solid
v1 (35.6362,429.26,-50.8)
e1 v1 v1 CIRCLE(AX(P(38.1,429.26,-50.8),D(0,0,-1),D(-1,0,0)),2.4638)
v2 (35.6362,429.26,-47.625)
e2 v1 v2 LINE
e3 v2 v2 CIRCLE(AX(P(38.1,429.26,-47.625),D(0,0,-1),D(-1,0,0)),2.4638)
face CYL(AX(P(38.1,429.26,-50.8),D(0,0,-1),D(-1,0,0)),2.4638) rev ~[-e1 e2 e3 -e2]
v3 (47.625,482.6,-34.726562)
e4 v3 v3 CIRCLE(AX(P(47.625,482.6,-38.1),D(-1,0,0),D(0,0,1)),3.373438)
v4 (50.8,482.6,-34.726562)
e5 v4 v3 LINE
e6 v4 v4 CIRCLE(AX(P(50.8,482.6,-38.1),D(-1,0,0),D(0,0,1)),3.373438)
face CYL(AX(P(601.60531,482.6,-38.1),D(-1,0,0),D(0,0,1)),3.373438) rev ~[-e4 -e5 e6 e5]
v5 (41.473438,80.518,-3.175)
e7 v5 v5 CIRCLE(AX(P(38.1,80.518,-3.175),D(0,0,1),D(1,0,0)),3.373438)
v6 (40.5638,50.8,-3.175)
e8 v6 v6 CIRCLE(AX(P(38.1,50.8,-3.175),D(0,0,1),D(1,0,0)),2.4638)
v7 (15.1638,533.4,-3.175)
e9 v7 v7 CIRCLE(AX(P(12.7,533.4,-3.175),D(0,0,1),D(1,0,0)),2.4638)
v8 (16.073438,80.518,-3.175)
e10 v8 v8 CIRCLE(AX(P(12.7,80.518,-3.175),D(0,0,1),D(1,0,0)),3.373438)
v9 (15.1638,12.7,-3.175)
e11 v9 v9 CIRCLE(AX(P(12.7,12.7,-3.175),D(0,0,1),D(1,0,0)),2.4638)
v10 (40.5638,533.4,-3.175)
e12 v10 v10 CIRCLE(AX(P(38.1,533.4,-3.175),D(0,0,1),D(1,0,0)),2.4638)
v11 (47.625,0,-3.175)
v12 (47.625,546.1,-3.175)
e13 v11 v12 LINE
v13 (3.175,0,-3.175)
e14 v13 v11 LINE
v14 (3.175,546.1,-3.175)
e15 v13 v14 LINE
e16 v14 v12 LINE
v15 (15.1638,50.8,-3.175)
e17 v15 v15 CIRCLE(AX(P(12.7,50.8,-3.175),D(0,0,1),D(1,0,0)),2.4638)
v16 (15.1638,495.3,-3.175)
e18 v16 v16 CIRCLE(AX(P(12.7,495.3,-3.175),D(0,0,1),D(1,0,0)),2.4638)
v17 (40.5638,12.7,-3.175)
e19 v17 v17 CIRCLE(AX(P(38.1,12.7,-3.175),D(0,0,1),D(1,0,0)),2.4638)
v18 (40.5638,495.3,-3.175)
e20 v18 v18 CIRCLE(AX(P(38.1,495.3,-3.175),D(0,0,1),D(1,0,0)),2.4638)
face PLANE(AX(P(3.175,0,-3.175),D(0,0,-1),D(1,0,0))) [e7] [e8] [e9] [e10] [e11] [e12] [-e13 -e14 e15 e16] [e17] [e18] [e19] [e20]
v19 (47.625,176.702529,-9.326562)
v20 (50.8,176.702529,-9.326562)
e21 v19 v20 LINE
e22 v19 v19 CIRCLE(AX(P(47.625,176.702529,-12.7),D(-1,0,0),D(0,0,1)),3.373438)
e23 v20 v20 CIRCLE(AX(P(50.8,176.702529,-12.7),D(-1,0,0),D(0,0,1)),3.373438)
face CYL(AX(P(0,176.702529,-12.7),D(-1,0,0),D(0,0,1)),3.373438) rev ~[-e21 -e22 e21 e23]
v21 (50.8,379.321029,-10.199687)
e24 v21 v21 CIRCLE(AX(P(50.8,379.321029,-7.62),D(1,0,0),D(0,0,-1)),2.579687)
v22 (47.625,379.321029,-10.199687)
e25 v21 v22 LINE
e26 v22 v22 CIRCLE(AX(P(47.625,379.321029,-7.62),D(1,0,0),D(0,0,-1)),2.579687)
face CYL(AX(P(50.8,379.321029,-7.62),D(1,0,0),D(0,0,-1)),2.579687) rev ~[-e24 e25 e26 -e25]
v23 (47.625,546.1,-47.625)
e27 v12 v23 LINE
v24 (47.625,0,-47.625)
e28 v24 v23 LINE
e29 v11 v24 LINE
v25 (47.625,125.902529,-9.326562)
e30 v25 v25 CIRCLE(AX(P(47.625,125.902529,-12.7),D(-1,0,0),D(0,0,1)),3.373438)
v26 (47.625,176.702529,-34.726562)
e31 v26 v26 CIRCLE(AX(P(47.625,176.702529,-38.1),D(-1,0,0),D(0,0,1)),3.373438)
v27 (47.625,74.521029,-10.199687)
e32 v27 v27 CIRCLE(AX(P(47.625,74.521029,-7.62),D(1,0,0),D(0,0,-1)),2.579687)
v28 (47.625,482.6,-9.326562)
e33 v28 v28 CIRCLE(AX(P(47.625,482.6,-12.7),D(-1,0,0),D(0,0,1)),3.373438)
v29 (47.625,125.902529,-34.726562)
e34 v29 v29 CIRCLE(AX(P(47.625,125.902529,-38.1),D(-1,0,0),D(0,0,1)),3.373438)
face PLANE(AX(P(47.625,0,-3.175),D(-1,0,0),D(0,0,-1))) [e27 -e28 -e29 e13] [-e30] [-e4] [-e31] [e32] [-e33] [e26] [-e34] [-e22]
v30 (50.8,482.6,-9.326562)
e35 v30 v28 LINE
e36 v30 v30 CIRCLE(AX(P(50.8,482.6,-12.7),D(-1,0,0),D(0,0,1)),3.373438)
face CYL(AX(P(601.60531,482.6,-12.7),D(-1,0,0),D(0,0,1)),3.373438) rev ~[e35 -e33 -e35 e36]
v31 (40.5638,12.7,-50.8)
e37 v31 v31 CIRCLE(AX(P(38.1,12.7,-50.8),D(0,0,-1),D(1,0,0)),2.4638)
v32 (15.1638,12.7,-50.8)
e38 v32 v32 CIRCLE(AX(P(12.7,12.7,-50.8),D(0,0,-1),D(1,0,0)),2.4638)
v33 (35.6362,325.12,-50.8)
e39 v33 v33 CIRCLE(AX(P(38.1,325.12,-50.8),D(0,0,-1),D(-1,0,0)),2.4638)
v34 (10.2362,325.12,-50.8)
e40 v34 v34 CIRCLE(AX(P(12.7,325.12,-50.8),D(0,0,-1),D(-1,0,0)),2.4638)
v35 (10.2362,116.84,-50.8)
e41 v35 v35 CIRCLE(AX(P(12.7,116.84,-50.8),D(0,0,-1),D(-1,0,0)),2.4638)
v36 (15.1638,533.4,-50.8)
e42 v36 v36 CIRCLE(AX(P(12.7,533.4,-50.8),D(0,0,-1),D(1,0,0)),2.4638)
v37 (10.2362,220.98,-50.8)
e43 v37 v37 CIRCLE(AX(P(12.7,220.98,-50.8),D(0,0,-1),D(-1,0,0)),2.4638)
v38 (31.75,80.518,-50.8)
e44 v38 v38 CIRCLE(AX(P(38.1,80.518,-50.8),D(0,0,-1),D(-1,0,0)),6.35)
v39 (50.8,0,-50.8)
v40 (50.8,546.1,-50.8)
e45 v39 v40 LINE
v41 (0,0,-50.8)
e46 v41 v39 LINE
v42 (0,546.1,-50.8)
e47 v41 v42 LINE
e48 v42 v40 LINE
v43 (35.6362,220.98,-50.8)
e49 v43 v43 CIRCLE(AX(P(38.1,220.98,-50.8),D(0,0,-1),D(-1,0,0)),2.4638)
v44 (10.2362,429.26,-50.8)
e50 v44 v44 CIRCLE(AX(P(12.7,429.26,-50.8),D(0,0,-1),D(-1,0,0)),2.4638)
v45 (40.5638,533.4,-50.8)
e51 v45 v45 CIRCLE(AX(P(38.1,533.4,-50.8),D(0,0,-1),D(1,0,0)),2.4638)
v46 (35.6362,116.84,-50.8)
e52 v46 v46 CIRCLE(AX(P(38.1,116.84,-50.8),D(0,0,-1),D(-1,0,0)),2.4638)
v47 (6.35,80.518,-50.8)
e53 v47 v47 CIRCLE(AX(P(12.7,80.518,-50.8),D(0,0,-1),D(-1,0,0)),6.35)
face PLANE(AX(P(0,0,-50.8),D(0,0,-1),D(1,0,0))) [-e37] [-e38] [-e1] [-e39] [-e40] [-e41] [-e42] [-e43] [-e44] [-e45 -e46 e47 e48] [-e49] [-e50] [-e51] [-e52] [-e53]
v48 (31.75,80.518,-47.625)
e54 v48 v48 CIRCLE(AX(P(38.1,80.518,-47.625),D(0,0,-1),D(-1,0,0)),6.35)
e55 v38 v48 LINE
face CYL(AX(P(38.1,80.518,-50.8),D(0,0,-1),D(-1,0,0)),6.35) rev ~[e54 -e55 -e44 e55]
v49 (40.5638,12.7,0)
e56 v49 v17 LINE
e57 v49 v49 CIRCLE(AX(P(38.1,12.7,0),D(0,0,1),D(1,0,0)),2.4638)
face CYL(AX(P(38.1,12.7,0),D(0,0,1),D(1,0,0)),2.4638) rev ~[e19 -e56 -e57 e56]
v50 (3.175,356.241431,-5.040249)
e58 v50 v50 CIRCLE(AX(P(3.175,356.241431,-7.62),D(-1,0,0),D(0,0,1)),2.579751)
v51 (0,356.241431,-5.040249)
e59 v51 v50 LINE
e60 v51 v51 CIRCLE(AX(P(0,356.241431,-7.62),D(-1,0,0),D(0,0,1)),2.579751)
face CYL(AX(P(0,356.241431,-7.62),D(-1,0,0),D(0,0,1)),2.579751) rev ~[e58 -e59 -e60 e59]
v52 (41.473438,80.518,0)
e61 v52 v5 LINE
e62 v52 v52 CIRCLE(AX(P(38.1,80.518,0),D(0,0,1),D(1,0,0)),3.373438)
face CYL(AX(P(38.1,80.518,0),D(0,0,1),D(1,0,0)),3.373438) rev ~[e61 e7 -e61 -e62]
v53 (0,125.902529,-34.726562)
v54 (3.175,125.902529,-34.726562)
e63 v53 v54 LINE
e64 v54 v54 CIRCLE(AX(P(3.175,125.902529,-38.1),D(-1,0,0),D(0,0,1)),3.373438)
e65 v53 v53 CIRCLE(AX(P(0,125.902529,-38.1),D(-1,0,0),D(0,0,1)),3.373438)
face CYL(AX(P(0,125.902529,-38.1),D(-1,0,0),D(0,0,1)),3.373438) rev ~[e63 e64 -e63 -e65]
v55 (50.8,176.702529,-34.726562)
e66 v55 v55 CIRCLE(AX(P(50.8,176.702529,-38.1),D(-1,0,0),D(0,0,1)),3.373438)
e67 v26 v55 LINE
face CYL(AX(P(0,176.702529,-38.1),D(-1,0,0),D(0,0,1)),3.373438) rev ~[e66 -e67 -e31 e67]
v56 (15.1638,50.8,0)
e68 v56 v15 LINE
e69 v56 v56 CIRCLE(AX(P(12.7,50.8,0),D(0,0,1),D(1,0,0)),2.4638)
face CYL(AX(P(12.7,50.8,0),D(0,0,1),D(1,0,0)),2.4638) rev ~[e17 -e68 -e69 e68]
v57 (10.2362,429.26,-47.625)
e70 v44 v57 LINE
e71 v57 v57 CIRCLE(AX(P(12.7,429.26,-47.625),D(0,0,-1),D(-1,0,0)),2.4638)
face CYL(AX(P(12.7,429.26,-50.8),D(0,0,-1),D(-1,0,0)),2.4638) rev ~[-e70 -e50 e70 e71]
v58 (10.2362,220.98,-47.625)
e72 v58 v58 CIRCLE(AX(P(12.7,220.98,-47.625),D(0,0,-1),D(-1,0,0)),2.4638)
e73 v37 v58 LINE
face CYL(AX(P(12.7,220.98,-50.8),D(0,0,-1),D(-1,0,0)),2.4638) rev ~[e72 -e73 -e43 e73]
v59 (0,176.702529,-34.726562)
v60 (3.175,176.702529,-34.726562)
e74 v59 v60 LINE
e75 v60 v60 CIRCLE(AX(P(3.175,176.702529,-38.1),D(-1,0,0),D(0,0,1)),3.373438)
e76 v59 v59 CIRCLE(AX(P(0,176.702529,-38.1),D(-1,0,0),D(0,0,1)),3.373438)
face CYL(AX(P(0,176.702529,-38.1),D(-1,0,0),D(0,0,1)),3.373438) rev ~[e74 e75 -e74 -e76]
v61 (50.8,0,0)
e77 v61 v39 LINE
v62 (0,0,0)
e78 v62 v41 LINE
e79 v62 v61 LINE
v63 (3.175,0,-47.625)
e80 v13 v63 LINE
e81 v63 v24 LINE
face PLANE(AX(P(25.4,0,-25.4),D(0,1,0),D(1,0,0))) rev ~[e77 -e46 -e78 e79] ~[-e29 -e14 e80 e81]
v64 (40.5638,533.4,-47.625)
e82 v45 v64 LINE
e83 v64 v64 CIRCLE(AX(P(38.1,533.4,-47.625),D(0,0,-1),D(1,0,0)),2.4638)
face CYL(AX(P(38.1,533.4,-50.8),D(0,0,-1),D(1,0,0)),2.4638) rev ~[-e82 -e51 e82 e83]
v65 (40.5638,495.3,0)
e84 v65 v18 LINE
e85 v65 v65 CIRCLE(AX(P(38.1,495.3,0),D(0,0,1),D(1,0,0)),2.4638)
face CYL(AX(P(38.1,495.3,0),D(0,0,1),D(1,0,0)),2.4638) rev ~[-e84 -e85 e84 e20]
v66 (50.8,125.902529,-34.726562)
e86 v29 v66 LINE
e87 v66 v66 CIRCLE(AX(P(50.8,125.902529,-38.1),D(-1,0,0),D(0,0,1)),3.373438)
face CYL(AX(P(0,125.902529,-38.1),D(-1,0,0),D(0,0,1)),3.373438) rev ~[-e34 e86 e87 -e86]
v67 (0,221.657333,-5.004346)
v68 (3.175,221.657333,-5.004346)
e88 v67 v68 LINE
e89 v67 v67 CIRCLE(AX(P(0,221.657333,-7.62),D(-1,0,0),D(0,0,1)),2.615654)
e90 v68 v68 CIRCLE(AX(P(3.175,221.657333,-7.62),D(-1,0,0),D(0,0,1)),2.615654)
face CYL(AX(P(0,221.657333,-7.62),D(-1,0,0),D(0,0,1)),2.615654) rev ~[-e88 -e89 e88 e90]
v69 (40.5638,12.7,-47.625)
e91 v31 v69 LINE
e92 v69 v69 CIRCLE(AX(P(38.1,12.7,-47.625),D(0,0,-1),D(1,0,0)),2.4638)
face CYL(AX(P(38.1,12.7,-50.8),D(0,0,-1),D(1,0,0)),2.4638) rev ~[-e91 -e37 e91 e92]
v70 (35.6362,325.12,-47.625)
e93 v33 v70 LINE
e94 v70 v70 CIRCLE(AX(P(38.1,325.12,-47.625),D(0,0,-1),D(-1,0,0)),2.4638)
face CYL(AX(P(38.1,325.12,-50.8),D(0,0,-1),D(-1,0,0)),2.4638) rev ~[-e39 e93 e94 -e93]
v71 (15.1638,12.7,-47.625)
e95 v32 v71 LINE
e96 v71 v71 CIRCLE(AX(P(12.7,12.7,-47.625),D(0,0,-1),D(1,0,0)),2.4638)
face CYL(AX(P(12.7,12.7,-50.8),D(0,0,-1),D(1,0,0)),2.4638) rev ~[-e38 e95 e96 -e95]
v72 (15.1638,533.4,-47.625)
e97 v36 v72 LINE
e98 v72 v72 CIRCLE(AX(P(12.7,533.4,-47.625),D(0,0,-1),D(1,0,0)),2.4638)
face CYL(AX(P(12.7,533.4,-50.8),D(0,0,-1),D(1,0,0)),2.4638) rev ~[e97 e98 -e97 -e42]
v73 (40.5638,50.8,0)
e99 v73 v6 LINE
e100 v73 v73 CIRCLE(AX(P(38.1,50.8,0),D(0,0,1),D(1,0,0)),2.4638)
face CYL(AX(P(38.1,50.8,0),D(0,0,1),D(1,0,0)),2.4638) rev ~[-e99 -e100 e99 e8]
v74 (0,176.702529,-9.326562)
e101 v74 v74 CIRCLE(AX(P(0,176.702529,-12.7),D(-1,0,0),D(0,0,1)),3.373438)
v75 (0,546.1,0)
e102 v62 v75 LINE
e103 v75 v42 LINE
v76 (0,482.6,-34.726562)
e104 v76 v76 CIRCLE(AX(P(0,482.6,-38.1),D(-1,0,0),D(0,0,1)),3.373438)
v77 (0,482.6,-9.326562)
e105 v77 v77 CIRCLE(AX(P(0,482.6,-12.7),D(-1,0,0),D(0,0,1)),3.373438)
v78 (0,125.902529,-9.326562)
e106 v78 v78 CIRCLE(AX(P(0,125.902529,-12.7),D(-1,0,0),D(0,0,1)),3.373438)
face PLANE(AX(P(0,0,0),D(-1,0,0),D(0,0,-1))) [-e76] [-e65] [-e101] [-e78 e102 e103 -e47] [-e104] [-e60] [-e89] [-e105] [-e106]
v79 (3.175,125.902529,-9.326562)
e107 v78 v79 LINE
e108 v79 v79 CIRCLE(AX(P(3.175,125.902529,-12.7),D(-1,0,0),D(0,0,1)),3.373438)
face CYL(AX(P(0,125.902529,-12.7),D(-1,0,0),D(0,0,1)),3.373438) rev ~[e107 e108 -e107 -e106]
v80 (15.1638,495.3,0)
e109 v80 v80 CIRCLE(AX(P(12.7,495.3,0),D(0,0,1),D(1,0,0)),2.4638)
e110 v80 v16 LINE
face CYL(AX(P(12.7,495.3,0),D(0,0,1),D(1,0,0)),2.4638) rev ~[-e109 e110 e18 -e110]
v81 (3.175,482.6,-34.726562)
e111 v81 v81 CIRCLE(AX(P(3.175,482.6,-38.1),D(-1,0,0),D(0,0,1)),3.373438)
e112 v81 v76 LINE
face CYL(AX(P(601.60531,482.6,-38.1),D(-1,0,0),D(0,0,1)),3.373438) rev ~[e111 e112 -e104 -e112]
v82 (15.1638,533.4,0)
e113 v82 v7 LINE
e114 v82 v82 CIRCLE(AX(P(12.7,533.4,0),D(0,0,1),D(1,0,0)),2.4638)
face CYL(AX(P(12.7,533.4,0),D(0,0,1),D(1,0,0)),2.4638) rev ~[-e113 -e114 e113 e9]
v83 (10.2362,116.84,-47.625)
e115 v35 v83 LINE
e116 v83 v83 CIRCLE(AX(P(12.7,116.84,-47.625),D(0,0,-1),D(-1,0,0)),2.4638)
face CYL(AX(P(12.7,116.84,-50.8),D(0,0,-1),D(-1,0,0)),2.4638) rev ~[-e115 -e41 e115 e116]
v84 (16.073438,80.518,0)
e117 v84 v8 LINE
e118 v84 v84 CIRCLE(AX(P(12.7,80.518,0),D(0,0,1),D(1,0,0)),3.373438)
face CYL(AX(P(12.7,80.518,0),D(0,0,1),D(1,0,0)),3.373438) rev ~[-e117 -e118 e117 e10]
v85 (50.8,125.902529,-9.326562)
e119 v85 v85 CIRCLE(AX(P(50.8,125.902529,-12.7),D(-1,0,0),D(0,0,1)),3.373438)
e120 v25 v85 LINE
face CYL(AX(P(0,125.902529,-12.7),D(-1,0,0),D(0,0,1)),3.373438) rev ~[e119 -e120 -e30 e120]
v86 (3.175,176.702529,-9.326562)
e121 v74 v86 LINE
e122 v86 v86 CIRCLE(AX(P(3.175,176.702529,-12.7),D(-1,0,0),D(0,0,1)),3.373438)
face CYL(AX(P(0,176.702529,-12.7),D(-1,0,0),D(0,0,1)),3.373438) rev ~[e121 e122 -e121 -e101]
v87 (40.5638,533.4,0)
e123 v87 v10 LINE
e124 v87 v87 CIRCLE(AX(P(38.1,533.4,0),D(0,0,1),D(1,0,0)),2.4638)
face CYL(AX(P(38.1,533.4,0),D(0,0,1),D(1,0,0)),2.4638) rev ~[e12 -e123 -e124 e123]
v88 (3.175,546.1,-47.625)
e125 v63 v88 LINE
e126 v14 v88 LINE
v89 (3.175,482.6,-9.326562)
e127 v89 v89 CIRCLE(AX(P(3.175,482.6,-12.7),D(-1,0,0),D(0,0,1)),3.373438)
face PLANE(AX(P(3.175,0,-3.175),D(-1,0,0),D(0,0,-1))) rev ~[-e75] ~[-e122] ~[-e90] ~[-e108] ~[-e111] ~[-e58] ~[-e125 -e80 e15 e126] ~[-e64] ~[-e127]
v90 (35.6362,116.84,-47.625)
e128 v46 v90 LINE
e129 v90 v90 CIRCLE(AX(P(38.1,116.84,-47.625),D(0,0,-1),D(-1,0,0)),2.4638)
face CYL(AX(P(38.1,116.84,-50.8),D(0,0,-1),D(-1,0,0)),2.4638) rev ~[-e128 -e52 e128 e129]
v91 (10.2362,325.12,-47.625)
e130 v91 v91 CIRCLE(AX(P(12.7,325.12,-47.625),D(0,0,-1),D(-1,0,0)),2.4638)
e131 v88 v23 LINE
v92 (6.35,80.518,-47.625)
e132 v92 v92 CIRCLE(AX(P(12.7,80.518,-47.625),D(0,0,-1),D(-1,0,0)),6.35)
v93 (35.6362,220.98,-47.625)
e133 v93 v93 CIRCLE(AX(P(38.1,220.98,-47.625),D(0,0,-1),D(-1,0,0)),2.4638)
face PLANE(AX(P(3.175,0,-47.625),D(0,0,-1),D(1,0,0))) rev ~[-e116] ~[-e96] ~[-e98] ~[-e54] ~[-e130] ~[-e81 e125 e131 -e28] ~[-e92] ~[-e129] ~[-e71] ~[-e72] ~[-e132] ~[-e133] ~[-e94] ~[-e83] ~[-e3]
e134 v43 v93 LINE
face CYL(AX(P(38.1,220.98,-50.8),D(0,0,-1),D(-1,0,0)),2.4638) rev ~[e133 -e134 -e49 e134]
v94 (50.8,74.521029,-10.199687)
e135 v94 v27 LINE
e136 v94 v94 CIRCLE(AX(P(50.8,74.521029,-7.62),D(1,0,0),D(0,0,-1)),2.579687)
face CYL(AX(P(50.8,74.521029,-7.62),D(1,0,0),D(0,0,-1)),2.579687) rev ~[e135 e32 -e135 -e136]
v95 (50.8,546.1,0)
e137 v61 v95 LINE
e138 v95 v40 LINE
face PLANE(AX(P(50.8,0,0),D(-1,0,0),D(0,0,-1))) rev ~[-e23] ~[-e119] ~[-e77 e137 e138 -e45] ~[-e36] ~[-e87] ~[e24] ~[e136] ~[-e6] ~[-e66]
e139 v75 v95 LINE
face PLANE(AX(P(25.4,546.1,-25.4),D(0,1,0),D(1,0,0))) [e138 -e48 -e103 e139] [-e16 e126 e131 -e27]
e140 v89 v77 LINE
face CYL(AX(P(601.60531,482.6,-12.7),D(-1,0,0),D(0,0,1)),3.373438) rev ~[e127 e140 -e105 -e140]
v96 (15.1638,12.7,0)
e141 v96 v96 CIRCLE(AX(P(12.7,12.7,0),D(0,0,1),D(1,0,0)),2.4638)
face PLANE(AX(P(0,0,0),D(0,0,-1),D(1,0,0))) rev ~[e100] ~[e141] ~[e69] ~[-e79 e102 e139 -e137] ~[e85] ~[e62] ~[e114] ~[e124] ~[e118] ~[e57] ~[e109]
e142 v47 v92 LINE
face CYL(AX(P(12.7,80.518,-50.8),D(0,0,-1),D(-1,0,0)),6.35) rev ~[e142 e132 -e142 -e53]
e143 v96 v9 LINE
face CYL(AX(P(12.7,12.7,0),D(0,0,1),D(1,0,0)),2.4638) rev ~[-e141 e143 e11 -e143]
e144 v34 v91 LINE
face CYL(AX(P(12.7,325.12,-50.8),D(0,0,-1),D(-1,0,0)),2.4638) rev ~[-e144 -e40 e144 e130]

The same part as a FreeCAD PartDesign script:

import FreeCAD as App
import Part
import Sketcher
Q = App.Units.Quantity


def add_polygon(sketch, points):
    """Adds a closed chain of lines whose ends are joined by coincident constraints."""
    first, n = sketch.GeometryCount, len(points)
    for a, b in zip(points, points[1:] + points[:1]):
        sketch.addGeometry(Part.LineSegment(App.Vector(*a, 0), App.Vector(*b, 0)), False)
    for i in range(n):
        sketch.addConstraint(Sketcher.Constraint("Coincident", first + i, 2, first + (i + 1) % n, 1))

doc = App.newDocument("Part")
body = doc.addObject("PartDesign::Body", "Body")

# Sketch on XZ plane
sketch1 = doc.addObject("Sketcher::SketchObject", "Sketch")
body.addObject(sketch1)
sketch1.AttachmentSupport = (doc.XZ_Plane, [""])
sketch1.MapMode = "FlatFace"
add_polygon(sketch1, [(0, -51), (0, 0), (51, 0), (51, -51)])  # lines 0-3
add_polygon(sketch1, [(48, -3), (3, -3), (3, -48), (48, -48)])  # lines 4-7
sketch1.addConstraint([
    Sketcher.Constraint("Vertical", 0),
    Sketcher.Constraint("Horizontal", 1),
    Sketcher.Constraint("Vertical", 2),
    Sketcher.Constraint("Horizontal", 3),
    Sketcher.Constraint("Horizontal", 4),
    Sketcher.Constraint("Vertical", 5),
    Sketcher.Constraint("Horizontal", 6),
    Sketcher.Constraint("Vertical", 7),
    Sketcher.Constraint("Coincident", 0, 2, -1, 1),
    Sketcher.Constraint("Equal", 3, 0),
    Sketcher.Constraint("Equal", 6, 5),
    Sketcher.Constraint("DistanceX", 1, 1, 1, 2, Q("2 in")),
    Sketcher.Constraint("DistanceX", 4, 2, 4, 1, Q("1.75 in")),
    Sketcher.Constraint("DistanceX", -1, 1, 4, 2, Q("0.125 in")),
    Sketcher.Constraint("DistanceY", 4, 2, -1, 1, Q("0.125 in")),
])
pad1 = doc.addObject("PartDesign::Pad", "Pad")
body.addObject(pad1)
pad1.Profile = sketch1
pad1.Length = Q("21.5 in")
pad1.Reversed = True

# Sketch on XY plane
sketch2 = doc.addObject("Sketcher::SketchObject", "Sketch001")
body.addObject(sketch2)
sketch2.AttachmentSupport = (doc.XY_Plane, [""])
sketch2.MapMode = "FlatFace"
sketch2.addGeometry(Part.Circle(App.Vector(38.1, 12.7, 0), App.Vector(0, 0, 1), 2.5), False)
sketch2.addConstraint([
    Sketcher.Constraint("Diameter", 0, Q("0.194 in")),
    Sketcher.Constraint("DistanceX", -1, 1, 0, 3, Q("1.5 in")),
    Sketcher.Constraint("DistanceY", -1, 1, 0, 3, Q("0.5 in")),
])
pocket1 = doc.addObject("PartDesign::Pocket", "Pocket")
body.addObject(pocket1)
pocket1.Profile = sketch2
pocket1.Type = "UpToFirst"

# Sketch on XY plane
sketch3 = doc.addObject("Sketcher::SketchObject", "Sketch002")
body.addObject(sketch3)
sketch3.AttachmentSupport = (doc.XY_Plane, [""])
sketch3.MapMode = "FlatFace"
sketch3.addGeometry(Part.Circle(App.Vector(12.7, 12.7, 0), App.Vector(0, 0, 1), 2.5), False)
sketch3.addConstraint([
    Sketcher.Constraint("Diameter", 0, Q("0.194 in")),
    Sketcher.Constraint("DistanceX", -1, 1, 0, 3, Q("0.5 in")),
    Sketcher.Constraint("DistanceY", -1, 1, 0, 3, Q("0.5 in")),
])
pocket2 = doc.addObject("PartDesign::Pocket", "Pocket001")
body.addObject(pocket2)
pocket2.Profile = sketch3
pocket2.Type = "UpToFirst"

# Sketch on XY plane
sketch4 = doc.addObject("Sketcher::SketchObject", "Sketch003")
body.addObject(sketch4)
sketch4.AttachmentSupport = (doc.XY_Plane, [""])
sketch4.MapMode = "FlatFace"
sketch4.addGeometry(Part.Circle(App.Vector(12.7, 50.8, 0), App.Vector(0, 0, 1), 2.5), False)
sketch4.addConstraint([
    Sketcher.Constraint("Diameter", 0, Q("0.194 in")),
    Sketcher.Constraint("DistanceY", -1, 1, 0, 3, Q("2 in")),
    Sketcher.Constraint("DistanceX", -1, 1, 0, 3, Q("0.5 in")),
])
pocket3 = doc.addObject("PartDesign::Pocket", "Pocket002")
body.addObject(pocket3)
pocket3.Profile = sketch4
pocket3.Type = "UpToFirst"

# Sketch on XY plane
sketch5 = doc.addObject("Sketcher::SketchObject", "Sketch004")
body.addObject(sketch5)
sketch5.AttachmentSupport = (doc.XY_Plane, [""])
sketch5.MapMode = "FlatFace"
sketch5.addGeometry(Part.Circle(App.Vector(38.1, 50.8, 0), App.Vector(0, 0, 1), 2.5), False)
sketch5.addConstraint([
    Sketcher.Constraint("Diameter", 0, Q("0.194 in")),
    Sketcher.Constraint("DistanceY", -1, 1, 0, 3, Q("2 in")),
    Sketcher.Constraint("DistanceX", -1, 1, 0, 3, Q("1.5 in")),
])
pocket4 = doc.addObject("PartDesign::Pocket", "Pocket003")
body.addObject(pocket4)
pocket4.Profile = sketch5
pocket4.Type = "UpToFirst"

# Sketch on XY plane
sketch6 = doc.addObject("Sketcher::SketchObject", "Sketch005")
body.addObject(sketch6)
sketch6.AttachmentSupport = (doc.XY_Plane, [""])
sketch6.MapMode = "FlatFace"
sketch6.addGeometry(Part.Circle(App.Vector(38.1, 495.3, 0), App.Vector(0, 0, 1), 2.5), False)
sketch6.addConstraint([
    Sketcher.Constraint("Diameter", 0, Q("0.194 in")),
    Sketcher.Constraint("DistanceX", -1, 1, 0, 3, Q("1.5 in")),
    Sketcher.Constraint("DistanceY", -1, 1, 0, 3, Q("19.5 in")),
])
pocket5 = doc.addObject("PartDesign::Pocket", "Pocket004")
body.addObject(pocket5)
pocket5.Profile = sketch6
pocket5.Type = "UpToFirst"

# Sketch on XY plane
sketch7 = doc.addObject("Sketcher::SketchObject", "Sketch006")
body.addObject(sketch7)
sketch7.AttachmentSupport = (doc.XY_Plane, [""])
sketch7.MapMode = "FlatFace"
sketch7.addGeometry(Part.Circle(App.Vector(12.7, 495.3, 0), App.Vector(0, 0, 1), 2.5), False)
sketch7.addConstraint([
    Sketcher.Constraint("Diameter", 0, Q("0.194 in")),
    Sketcher.Constraint("DistanceX", -1, 1, 0, 3, Q("0.5 in")),
    Sketcher.Constraint("DistanceY", -1, 1, 0, 3, Q("19.5 in")),
])
pocket6 = doc.addObject("PartDesign::Pocket", "Pocket005")
body.addObject(pocket6)
pocket6.Profile = sketch7
pocket6.Type = "UpToFirst"

# Sketch on XY plane
sketch8 = doc.addObject("Sketcher::SketchObject", "Sketch007")
body.addObject(sketch8)
sketch8.AttachmentSupport = (doc.XY_Plane, [""])
sketch8.MapMode = "FlatFace"
sketch8.addGeometry(Part.Circle(App.Vector(12.7, 533.4, 0), App.Vector(0, 0, 1), 2.5), False)
sketch8.addConstraint([
    Sketcher.Constraint("Diameter", 0, Q("0.194 in")),
    Sketcher.Constraint("DistanceY", -1, 1, 0, 3, Q("21 in")),
    Sketcher.Constraint("DistanceX", -1, 1, 0, 3, Q("0.5 in")),
])
pocket7 = doc.addObject("PartDesign::Pocket", "Pocket006")
body.addObject(pocket7)
pocket7.Profile = sketch8
pocket7.Type = "UpToFirst"

# Sketch on XY plane
sketch9 = doc.addObject("Sketcher::SketchObject", "Sketch008")
body.addObject(sketch9)
sketch9.AttachmentSupport = (doc.XY_Plane, [""])
sketch9.MapMode = "FlatFace"
sketch9.addGeometry(Part.Circle(App.Vector(38.1, 533.4, 0), App.Vector(0, 0, 1), 2.5), False)
sketch9.addConstraint([
    Sketcher.Constraint("Diameter", 0, Q("0.194 in")),
    Sketcher.Constraint("DistanceY", -1, 1, 0, 3, Q("21 in")),
    Sketcher.Constraint("DistanceX", -1, 1, 0, 3, Q("1.5 in")),
])
pocket8 = doc.addObject("PartDesign::Pocket", "Pocket007")
body.addObject(pocket8)
pocket8.Profile = sketch9
pocket8.Type = "UpToFirst"

# Sketch on XY plane
sketch10 = doc.addObject("Sketcher::SketchObject", "Sketch009")
body.addObject(sketch10)
sketch10.AttachmentSupport = (doc.XY_Plane, [""])
sketch10.MapMode = "FlatFace"
sketch10.AttachmentOffset = App.Placement(App.Vector(0, 0, -2 * 25.4), App.Rotation())
sketch10.addGeometry(Part.Circle(App.Vector(38.1, 533.4, 0), App.Vector(0, 0, 1), 2.5), False)
sketch10.addConstraint([
    Sketcher.Constraint("Diameter", 0, Q("0.194 in")),
    Sketcher.Constraint("DistanceY", -1, 1, 0, 3, Q("21 in")),
    Sketcher.Constraint("DistanceX", -1, 1, 0, 3, Q("1.5 in")),
])
pocket9 = doc.addObject("PartDesign::Pocket", "Pocket008")
body.addObject(pocket9)
pocket9.Profile = sketch10
pocket9.Type = "UpToFirst"
pocket9.Reversed = True

# Sketch on XY plane
sketch11 = doc.addObject("Sketcher::SketchObject", "Sketch010")
body.addObject(sketch11)
sketch11.AttachmentSupport = (doc.XY_Plane, [""])
sketch11.MapMode = "FlatFace"
sketch11.AttachmentOffset = App.Placement(App.Vector(0, 0, -2 * 25.4), App.Rotation())
sketch11.addGeometry(Part.Circle(App.Vector(12.7, 533.4, 0), App.Vector(0, 0, 1), 2.5), False)
sketch11.addConstraint([
    Sketcher.Constraint("Diameter", 0, Q("0.194 in")),
    Sketcher.Constraint("DistanceY", -1, 1, 0, 3, Q("21 in")),
    Sketcher.Constraint("DistanceX", -1, 1, 0, 3, Q("0.5 in")),
])
pocket10 = doc.addObject("PartDesign::Pocket", "Pocket009")
body.addObject(pocket10)
pocket10.Profile = sketch11
pocket10.Type = "UpToFirst"
pocket10.Reversed = True

# Sketch on XY plane
sketch12 = doc.addObject("Sketcher::SketchObject", "Sketch011")
body.addObject(sketch12)
sketch12.AttachmentSupport = (doc.XY_Plane, [""])
sketch12.MapMode = "FlatFace"
sketch12.AttachmentOffset = App.Placement(App.Vector(0, 0, -2 * 25.4), App.Rotation())
sketch12.addGeometry(Part.Circle(App.Vector(38.1, 429.3, 0), App.Vector(0, 0, 1), 2.5), False)
sketch12.addConstraint([
    Sketcher.Constraint("Diameter", 0, Q("0.194 in")),
    Sketcher.Constraint("DistanceX", -1, 1, 0, 3, Q("1.5 in")),
    Sketcher.Constraint("DistanceY", -1, 1, 0, 3, Q("16.9 in")),
])
pocket11 = doc.addObject("PartDesign::Pocket", "Pocket010")
body.addObject(pocket11)
pocket11.Profile = sketch12
pocket11.Type = "UpToFirst"
pocket11.Reversed = True

# Sketch on XY plane
sketch13 = doc.addObject("Sketcher::SketchObject", "Sketch012")
body.addObject(sketch13)
sketch13.AttachmentSupport = (doc.XY_Plane, [""])
sketch13.MapMode = "FlatFace"
sketch13.AttachmentOffset = App.Placement(App.Vector(0, 0, -2 * 25.4), App.Rotation())
sketch13.addGeometry(Part.Circle(App.Vector(12.7, 429.3, 0), App.Vector(0, 0, 1), 2.5), False)
sketch13.addConstraint([
    Sketcher.Constraint("Diameter", 0, Q("0.194 in")),
    Sketcher.Constraint("DistanceX", -1, 1, 0, 3, Q("0.5 in")),
    Sketcher.Constraint("DistanceY", -1, 1, 0, 3, Q("16.9 in")),
])
pocket12 = doc.addObject("PartDesign::Pocket", "Pocket011")
body.addObject(pocket12)
pocket12.Profile = sketch13
pocket12.Type = "UpToFirst"
pocket12.Reversed = True

# Sketch on XY plane
sketch14 = doc.addObject("Sketcher::SketchObject", "Sketch013")
body.addObject(sketch14)
sketch14.AttachmentSupport = (doc.XY_Plane, [""])
sketch14.MapMode = "FlatFace"
sketch14.AttachmentOffset = App.Placement(App.Vector(0, 0, -2 * 25.4), App.Rotation())
sketch14.addGeometry(Part.Circle(App.Vector(38.1, 325.1, 0), App.Vector(0, 0, 1), 2.5), False)
sketch14.addConstraint([
    Sketcher.Constraint("Diameter", 0, Q("0.194 in")),
    Sketcher.Constraint("DistanceX", -1, 1, 0, 3, Q("1.5 in")),
    Sketcher.Constraint("DistanceY", -1, 1, 0, 3, Q("12.8 in")),
])
pocket13 = doc.addObject("PartDesign::Pocket", "Pocket012")
body.addObject(pocket13)
pocket13.Profile = sketch14
pocket13.Type = "UpToFirst"
pocket13.Reversed = True

# Sketch on XY plane
sketch15 = doc.addObject("Sketcher::SketchObject", "Sketch014")
body.addObject(sketch15)
sketch15.AttachmentSupport = (doc.XY_Plane, [""])
sketch15.MapMode = "FlatFace"
sketch15.AttachmentOffset = App.Placement(App.Vector(0, 0, -2 * 25.4), App.Rotation())
sketch15.addGeometry(Part.Circle(App.Vector(12.7, 325.1, 0), App.Vector(0, 0, 1), 2.5), False)
sketch15.addConstraint([
    Sketcher.Constraint("Diameter", 0, Q("0.194 in")),
    Sketcher.Constraint("DistanceX", -1, 1, 0, 3, Q("0.5 in")),
    Sketcher.Constraint("DistanceY", -1, 1, 0, 3, Q("12.8 in")),
])
pocket14 = doc.addObject("PartDesign::Pocket", "Pocket013")
body.addObject(pocket14)
pocket14.Profile = sketch15
pocket14.Type = "UpToFirst"
pocket14.Reversed = True

# Sketch on XY plane
sketch16 = doc.addObject("Sketcher::SketchObject", "Sketch015")
body.addObject(sketch16)
sketch16.AttachmentSupport = (doc.XY_Plane, [""])
sketch16.MapMode = "FlatFace"
sketch16.AttachmentOffset = App.Placement(App.Vector(0, 0, -2 * 25.4), App.Rotation())
sketch16.addGeometry(Part.Circle(App.Vector(38.1, 221, 0), App.Vector(0, 0, 1), 2.5), False)
sketch16.addConstraint([
    Sketcher.Constraint("Diameter", 0, Q("0.194 in")),
    Sketcher.Constraint("DistanceX", -1, 1, 0, 3, Q("1.5 in")),
    Sketcher.Constraint("DistanceY", -1, 1, 0, 3, Q("8.7 in")),
])
pocket15 = doc.addObject("PartDesign::Pocket", "Pocket014")
body.addObject(pocket15)
pocket15.Profile = sketch16
pocket15.Type = "UpToFirst"
pocket15.Reversed = True

# Sketch on XY plane
sketch17 = doc.addObject("Sketcher::SketchObject", "Sketch016")
body.addObject(sketch17)
sketch17.AttachmentSupport = (doc.XY_Plane, [""])
sketch17.MapMode = "FlatFace"
sketch17.AttachmentOffset = App.Placement(App.Vector(0, 0, -2 * 25.4), App.Rotation())
sketch17.addGeometry(Part.Circle(App.Vector(12.7, 221, 0), App.Vector(0, 0, 1), 2.5), False)
sketch17.addConstraint([
    Sketcher.Constraint("Diameter", 0, Q("0.194 in")),
    Sketcher.Constraint("DistanceX", -1, 1, 0, 3, Q("0.5 in")),
    Sketcher.Constraint("DistanceY", -1, 1, 0, 3, Q("8.7 in")),
])
pocket16 = doc.addObject("PartDesign::Pocket", "Pocket015")
body.addObject(pocket16)
pocket16.Profile = sketch17
pocket16.Type = "UpToFirst"
pocket16.Reversed = True

# Sketch on XY plane
sketch18 = doc.addObject("Sketcher::SketchObject", "Sketch017")
body.addObject(sketch18)
sketch18.AttachmentSupport = (doc.XY_Plane, [""])
sketch18.MapMode = "FlatFace"
sketch18.AttachmentOffset = App.Placement(App.Vector(0, 0, -2 * 25.4), App.Rotation())
sketch18.addGeometry(Part.Circle(App.Vector(38.1, 116.8, 0), App.Vector(0, 0, 1), 2.5), False)
sketch18.addConstraint([
    Sketcher.Constraint("Diameter", 0, Q("0.194 in")),
    Sketcher.Constraint("DistanceX", -1, 1, 0, 3, Q("1.5 in")),
    Sketcher.Constraint("DistanceY", -1, 1, 0, 3, Q("4.6 in")),
])
pocket17 = doc.addObject("PartDesign::Pocket", "Pocket016")
body.addObject(pocket17)
pocket17.Profile = sketch18
pocket17.Type = "UpToFirst"
pocket17.Reversed = True

# Sketch on XY plane
sketch19 = doc.addObject("Sketcher::SketchObject", "Sketch018")
body.addObject(sketch19)
sketch19.AttachmentSupport = (doc.XY_Plane, [""])
sketch19.MapMode = "FlatFace"
sketch19.AttachmentOffset = App.Placement(App.Vector(0, 0, -2 * 25.4), App.Rotation())
sketch19.addGeometry(Part.Circle(App.Vector(12.7, 116.8, 0), App.Vector(0, 0, 1), 2.5), False)
sketch19.addConstraint([
    Sketcher.Constraint("Diameter", 0, Q("0.194 in")),
    Sketcher.Constraint("DistanceX", -1, 1, 0, 3, Q("0.5 in")),
    Sketcher.Constraint("DistanceY", -1, 1, 0, 3, Q("4.6 in")),
])
pocket18 = doc.addObject("PartDesign::Pocket", "Pocket017")
body.addObject(pocket18)
pocket18.Profile = sketch19
pocket18.Type = "UpToFirst"
pocket18.Reversed = True

# Sketch on XY plane
sketch20 = doc.addObject("Sketcher::SketchObject", "Sketch019")
body.addObject(sketch20)
sketch20.AttachmentSupport = (doc.XY_Plane, [""])
sketch20.MapMode = "FlatFace"
sketch20.AttachmentOffset = App.Placement(App.Vector(0, 0, -2 * 25.4), App.Rotation())
sketch20.addGeometry(Part.Circle(App.Vector(38.1, 12.7, 0), App.Vector(0, 0, 1), 2.5), False)
sketch20.addConstraint([
    Sketcher.Constraint("Diameter", 0, Q("0.194 in")),
    Sketcher.Constraint("DistanceX", -1, 1, 0, 3, Q("1.5 in")),
    Sketcher.Constraint("DistanceY", -1, 1, 0, 3, Q("0.5 in")),
])
pocket19 = doc.addObject("PartDesign::Pocket", "Pocket018")
body.addObject(pocket19)
pocket19.Profile = sketch20
pocket19.Type = "UpToFirst"
pocket19.Reversed = True

# Sketch on XY plane
sketch21 = doc.addObject("Sketcher::SketchObject", "Sketch020")
body.addObject(sketch21)
sketch21.AttachmentSupport = (doc.XY_Plane, [""])
sketch21.MapMode = "FlatFace"
sketch21.AttachmentOffset = App.Placement(App.Vector(0, 0, -2 * 25.4), App.Rotation())
sketch21.addGeometry(Part.Circle(App.Vector(12.7, 12.7, 0), App.Vector(0, 0, 1), 2.5), False)
sketch21.addConstraint([
    Sketcher.Constraint("Diameter", 0, Q("0.194 in")),
    Sketcher.Constraint("DistanceX", -1, 1, 0, 3, Q("0.5 in")),
    Sketcher.Constraint("DistanceY", -1, 1, 0, 3, Q("0.5 in")),
])
pocket20 = doc.addObject("PartDesign::Pocket", "Pocket019")
body.addObject(pocket20)
pocket20.Profile = sketch21
pocket20.Type = "UpToFirst"
pocket20.Reversed = True

# Sketch on YZ plane
sketch22 = doc.addObject("Sketcher::SketchObject", "Sketch021")
body.addObject(sketch22)
sketch22.AttachmentSupport = (doc.YZ_Plane, [""])
sketch22.MapMode = "FlatFace"
sketch22.AttachmentOffset = App.Placement(App.Vector(0, 0, 2 * 25.4), App.Rotation())
sketch22.addGeometry([
    Part.Circle(App.Vector(482.6, -12.7, 0), App.Vector(0, 0, 1), 3.4),
    Part.Circle(App.Vector(482.6, -38.1, 0), App.Vector(0, 0, 1), 3.4),
], False)
sketch22.addConstraint([
    Sketcher.Constraint("Equal", 0, 1),
    Sketcher.Constraint("Vertical", 0, 3, 1, 3),
    Sketcher.Constraint("Diameter", 0, Q("0.265625 in")),
    Sketcher.Constraint("DistanceX", -1, 1, 0, 3, Q("19 in")),
    Sketcher.Constraint("DistanceY", 1, 3, 0, 3, Q("1 in")),
    Sketcher.Constraint("DistanceY", 0, 3, -1, 1, Q("0.5 in")),
])
doc.recompute()
hole = doc.addObject("PartDesign::Hole", "Hole")
body.addObject(hole)
hole.Profile = sketch22
hole.ThreadType = "None"
hole.Diameter = Q("0.265625 in")
hole.DepthType = "ThroughAll"

# Sketch on YZ plane
sketch23 = doc.addObject("Sketcher::SketchObject", "Sketch022")
body.addObject(sketch23)
sketch23.AttachmentSupport = (doc.YZ_Plane, [""])
sketch23.MapMode = "FlatFace"
sketch23.addGeometry(Part.Circle(App.Vector(356.2, -7.6, 0), App.Vector(0, 0, 1), 2.6), False)
sketch23.addConstraint([
    Sketcher.Constraint("DistanceY", 0, 3, -1, 1, Q("0.3 in")),
    Sketcher.Constraint("Diameter", 0, Q("5.159502 mm")),
    Sketcher.Constraint("DistanceX", -1, 1, 0, 3, Q("356.241431 mm")),
])
pocket21 = doc.addObject("PartDesign::Pocket", "Pocket020")
body.addObject(pocket21)
pocket21.Profile = sketch23
pocket21.Type = "UpToFirst"
pocket21.Reversed = True

# Sketch on YZ plane
sketch24 = doc.addObject("Sketcher::SketchObject", "Sketch023")
body.addObject(sketch24)
sketch24.AttachmentSupport = (doc.YZ_Plane, [""])
sketch24.MapMode = "FlatFace"
sketch24.addGeometry(Part.Circle(App.Vector(221.7, -7.6, 0), App.Vector(0, 0, 1), 2.6), False)
sketch24.addConstraint([
    Sketcher.Constraint("DistanceY", 0, 3, -1, 1, Q("0.3 in")),
    Sketcher.Constraint("Diameter", 0, Q("5.231308 mm")),
    Sketcher.Constraint("DistanceX", -1, 1, 0, 3, Q("221.657333 mm")),
])
pocket22 = doc.addObject("PartDesign::Pocket", "Pocket021")
body.addObject(pocket22)
pocket22.Profile = sketch24
pocket22.Type = "UpToFirst"
pocket22.Reversed = True

# Sketch on YZ plane
sketch25 = doc.addObject("Sketcher::SketchObject", "Sketch024")
body.addObject(sketch25)
sketch25.AttachmentSupport = (doc.YZ_Plane, [""])
sketch25.MapMode = "FlatFace"
sketch25.addGeometry([
    Part.Circle(App.Vector(176.7, -12.7, 0), App.Vector(0, 0, 1), 3.4),
    Part.Circle(App.Vector(125.9, -12.7, 0), App.Vector(0, 0, 1), 3.4),
    Part.Circle(App.Vector(125.9, -38.1, 0), App.Vector(0, 0, 1), 3.4),
    Part.Circle(App.Vector(176.7, -38.1, 0), App.Vector(0, 0, 1), 3.4),
], False)
sketch25.addConstraint([
    Sketcher.Constraint("Equal", 0, 1),
    Sketcher.Constraint("Equal", 1, 2),
    Sketcher.Constraint("Equal", 2, 3),
    Sketcher.Constraint("Horizontal", 0, 3, 1, 3),
    Sketcher.Constraint("Horizontal", 2, 3, 3, 3),
    Sketcher.Constraint("Vertical", 1, 3, 2, 3),
    Sketcher.Constraint("Vertical", 0, 3, 3, 3),
    Sketcher.Constraint("Diameter", 0, Q("0.265625 in")),
    Sketcher.Constraint("DistanceX", 1, 3, 0, 3, Q("2 in")),
    Sketcher.Constraint("DistanceY", 2, 3, 1, 3, Q("1 in")),
    Sketcher.Constraint("DistanceY", 0, 3, -1, 1, Q("0.5 in")),
    Sketcher.Constraint("DistanceX", -1, 1, 0, 3, Q("176.702529 mm")),
])
pocket23 = doc.addObject("PartDesign::Pocket", "Pocket022")
body.addObject(pocket23)
pocket23.Profile = sketch25
pocket23.Type = "ThroughAll"
pocket23.Reversed = True

# Sketch on YZ plane
sketch26 = doc.addObject("Sketcher::SketchObject", "Sketch025")
body.addObject(sketch26)
sketch26.AttachmentSupport = (doc.YZ_Plane, [""])
sketch26.MapMode = "FlatFace"
sketch26.AttachmentOffset = App.Placement(App.Vector(0, 0, 2 * 25.4), App.Rotation())
sketch26.addGeometry(Part.Circle(App.Vector(379.3, -7.6, 0), App.Vector(0, 0, 1), 2.6), False)
sketch26.addConstraint([
    Sketcher.Constraint("Diameter", 0, Q("0.203125 in")),
    Sketcher.Constraint("DistanceY", 0, 3, -1, 1, Q("0.3 in")),
    Sketcher.Constraint("DistanceX", -1, 1, 0, 3, Q("379.321029 mm")),
])
pocket24 = doc.addObject("PartDesign::Pocket", "Pocket023")
body.addObject(pocket24)
pocket24.Profile = sketch26
pocket24.Type = "UpToFirst"

# Sketch on YZ plane
sketch27 = doc.addObject("Sketcher::SketchObject", "Sketch026")
body.addObject(sketch27)
sketch27.AttachmentSupport = (doc.YZ_Plane, [""])
sketch27.MapMode = "FlatFace"
sketch27.AttachmentOffset = App.Placement(App.Vector(0, 0, 2 * 25.4), App.Rotation())
sketch27.addGeometry(Part.Circle(App.Vector(74.5, -7.6, 0), App.Vector(0, 0, 1), 2.6), False)
sketch27.addConstraint([
    Sketcher.Constraint("Diameter", 0, Q("0.203125 in")),
    Sketcher.Constraint("DistanceY", 0, 3, -1, 1, Q("0.3 in")),
    Sketcher.Constraint("DistanceX", -1, 1, 0, 3, Q("74.521029 mm")),
])
pocket25 = doc.addObject("PartDesign::Pocket", "Pocket024")
body.addObject(pocket25)
pocket25.Profile = sketch27
pocket25.Type = "UpToFirst"

# Sketch on XY plane
sketch28 = doc.addObject("Sketcher::SketchObject", "Sketch027")
body.addObject(sketch28)
sketch28.AttachmentSupport = (doc.XY_Plane, [""])
sketch28.MapMode = "FlatFace"
sketch28.addGeometry([
    Part.Circle(App.Vector(12.7, 80.5, 0), App.Vector(0, 0, 1), 3.4),
    Part.Circle(App.Vector(38.1, 80.5, 0), App.Vector(0, 0, 1), 3.4),
], False)
sketch28.addConstraint([
    Sketcher.Constraint("Equal", 0, 1),
    Sketcher.Constraint("Horizontal", 0, 3, 1, 3),
    Sketcher.Constraint("Diameter", 0, Q("0.265625 in")),
    Sketcher.Constraint("DistanceX", 0, 3, 1, 3, Q("1 in")),
    Sketcher.Constraint("DistanceX", -1, 1, 0, 3, Q("0.5 in")),
    Sketcher.Constraint("DistanceY", -1, 1, 0, 3, Q("3.17 in")),
])
pocket26 = doc.addObject("PartDesign::Pocket", "Pocket025")
body.addObject(pocket26)
pocket26.Profile = sketch28
pocket26.Type = "ThroughAll"

# Sketch on XY plane
sketch29 = doc.addObject("Sketcher::SketchObject", "Sketch028")
body.addObject(sketch29)
sketch29.AttachmentSupport = (doc.XY_Plane, [""])
sketch29.MapMode = "FlatFace"
sketch29.AttachmentOffset = App.Placement(App.Vector(0, 0, -2 * 25.4), App.Rotation())
sketch29.addGeometry(Part.Circle(App.Vector(38, 81, 0), App.Vector(0, 0, 1), 6), False)
sketch29.addConstraint([
    Sketcher.Constraint("Diameter", 0, Q("0.5 in")),
    Sketcher.Constraint("DistanceX", -1, 1, 0, 3, Q("1.5 in")),
    Sketcher.Constraint("DistanceY", -1, 1, 0, 3, Q("3.17 in")),
])
pocket27 = doc.addObject("PartDesign::Pocket", "Pocket026")
body.addObject(pocket27)
pocket27.Profile = sketch29
pocket27.Length = Q("0.125 in")
pocket27.Reversed = True

# Sketch on XY plane
sketch30 = doc.addObject("Sketcher::SketchObject", "Sketch029")
body.addObject(sketch30)
sketch30.AttachmentSupport = (doc.XY_Plane, [""])
sketch30.MapMode = "FlatFace"
sketch30.AttachmentOffset = App.Placement(App.Vector(0, 0, -2 * 25.4), App.Rotation())
sketch30.addGeometry(Part.Circle(App.Vector(13, 81, 0), App.Vector(0, 0, 1), 6), False)
sketch30.addConstraint([
    Sketcher.Constraint("Diameter", 0, Q("0.5 in")),
    Sketcher.Constraint("DistanceX", -1, 1, 0, 3, Q("0.5 in")),
    Sketcher.Constraint("DistanceY", -1, 1, 0, 3, Q("3.17 in")),
])
pocket28 = doc.addObject("PartDesign::Pocket", "Pocket027")
body.addObject(pocket28)
pocket28.Profile = sketch30
pocket28.Length = Q("0.125 in")
pocket28.Reversed = True

doc.recompute()
